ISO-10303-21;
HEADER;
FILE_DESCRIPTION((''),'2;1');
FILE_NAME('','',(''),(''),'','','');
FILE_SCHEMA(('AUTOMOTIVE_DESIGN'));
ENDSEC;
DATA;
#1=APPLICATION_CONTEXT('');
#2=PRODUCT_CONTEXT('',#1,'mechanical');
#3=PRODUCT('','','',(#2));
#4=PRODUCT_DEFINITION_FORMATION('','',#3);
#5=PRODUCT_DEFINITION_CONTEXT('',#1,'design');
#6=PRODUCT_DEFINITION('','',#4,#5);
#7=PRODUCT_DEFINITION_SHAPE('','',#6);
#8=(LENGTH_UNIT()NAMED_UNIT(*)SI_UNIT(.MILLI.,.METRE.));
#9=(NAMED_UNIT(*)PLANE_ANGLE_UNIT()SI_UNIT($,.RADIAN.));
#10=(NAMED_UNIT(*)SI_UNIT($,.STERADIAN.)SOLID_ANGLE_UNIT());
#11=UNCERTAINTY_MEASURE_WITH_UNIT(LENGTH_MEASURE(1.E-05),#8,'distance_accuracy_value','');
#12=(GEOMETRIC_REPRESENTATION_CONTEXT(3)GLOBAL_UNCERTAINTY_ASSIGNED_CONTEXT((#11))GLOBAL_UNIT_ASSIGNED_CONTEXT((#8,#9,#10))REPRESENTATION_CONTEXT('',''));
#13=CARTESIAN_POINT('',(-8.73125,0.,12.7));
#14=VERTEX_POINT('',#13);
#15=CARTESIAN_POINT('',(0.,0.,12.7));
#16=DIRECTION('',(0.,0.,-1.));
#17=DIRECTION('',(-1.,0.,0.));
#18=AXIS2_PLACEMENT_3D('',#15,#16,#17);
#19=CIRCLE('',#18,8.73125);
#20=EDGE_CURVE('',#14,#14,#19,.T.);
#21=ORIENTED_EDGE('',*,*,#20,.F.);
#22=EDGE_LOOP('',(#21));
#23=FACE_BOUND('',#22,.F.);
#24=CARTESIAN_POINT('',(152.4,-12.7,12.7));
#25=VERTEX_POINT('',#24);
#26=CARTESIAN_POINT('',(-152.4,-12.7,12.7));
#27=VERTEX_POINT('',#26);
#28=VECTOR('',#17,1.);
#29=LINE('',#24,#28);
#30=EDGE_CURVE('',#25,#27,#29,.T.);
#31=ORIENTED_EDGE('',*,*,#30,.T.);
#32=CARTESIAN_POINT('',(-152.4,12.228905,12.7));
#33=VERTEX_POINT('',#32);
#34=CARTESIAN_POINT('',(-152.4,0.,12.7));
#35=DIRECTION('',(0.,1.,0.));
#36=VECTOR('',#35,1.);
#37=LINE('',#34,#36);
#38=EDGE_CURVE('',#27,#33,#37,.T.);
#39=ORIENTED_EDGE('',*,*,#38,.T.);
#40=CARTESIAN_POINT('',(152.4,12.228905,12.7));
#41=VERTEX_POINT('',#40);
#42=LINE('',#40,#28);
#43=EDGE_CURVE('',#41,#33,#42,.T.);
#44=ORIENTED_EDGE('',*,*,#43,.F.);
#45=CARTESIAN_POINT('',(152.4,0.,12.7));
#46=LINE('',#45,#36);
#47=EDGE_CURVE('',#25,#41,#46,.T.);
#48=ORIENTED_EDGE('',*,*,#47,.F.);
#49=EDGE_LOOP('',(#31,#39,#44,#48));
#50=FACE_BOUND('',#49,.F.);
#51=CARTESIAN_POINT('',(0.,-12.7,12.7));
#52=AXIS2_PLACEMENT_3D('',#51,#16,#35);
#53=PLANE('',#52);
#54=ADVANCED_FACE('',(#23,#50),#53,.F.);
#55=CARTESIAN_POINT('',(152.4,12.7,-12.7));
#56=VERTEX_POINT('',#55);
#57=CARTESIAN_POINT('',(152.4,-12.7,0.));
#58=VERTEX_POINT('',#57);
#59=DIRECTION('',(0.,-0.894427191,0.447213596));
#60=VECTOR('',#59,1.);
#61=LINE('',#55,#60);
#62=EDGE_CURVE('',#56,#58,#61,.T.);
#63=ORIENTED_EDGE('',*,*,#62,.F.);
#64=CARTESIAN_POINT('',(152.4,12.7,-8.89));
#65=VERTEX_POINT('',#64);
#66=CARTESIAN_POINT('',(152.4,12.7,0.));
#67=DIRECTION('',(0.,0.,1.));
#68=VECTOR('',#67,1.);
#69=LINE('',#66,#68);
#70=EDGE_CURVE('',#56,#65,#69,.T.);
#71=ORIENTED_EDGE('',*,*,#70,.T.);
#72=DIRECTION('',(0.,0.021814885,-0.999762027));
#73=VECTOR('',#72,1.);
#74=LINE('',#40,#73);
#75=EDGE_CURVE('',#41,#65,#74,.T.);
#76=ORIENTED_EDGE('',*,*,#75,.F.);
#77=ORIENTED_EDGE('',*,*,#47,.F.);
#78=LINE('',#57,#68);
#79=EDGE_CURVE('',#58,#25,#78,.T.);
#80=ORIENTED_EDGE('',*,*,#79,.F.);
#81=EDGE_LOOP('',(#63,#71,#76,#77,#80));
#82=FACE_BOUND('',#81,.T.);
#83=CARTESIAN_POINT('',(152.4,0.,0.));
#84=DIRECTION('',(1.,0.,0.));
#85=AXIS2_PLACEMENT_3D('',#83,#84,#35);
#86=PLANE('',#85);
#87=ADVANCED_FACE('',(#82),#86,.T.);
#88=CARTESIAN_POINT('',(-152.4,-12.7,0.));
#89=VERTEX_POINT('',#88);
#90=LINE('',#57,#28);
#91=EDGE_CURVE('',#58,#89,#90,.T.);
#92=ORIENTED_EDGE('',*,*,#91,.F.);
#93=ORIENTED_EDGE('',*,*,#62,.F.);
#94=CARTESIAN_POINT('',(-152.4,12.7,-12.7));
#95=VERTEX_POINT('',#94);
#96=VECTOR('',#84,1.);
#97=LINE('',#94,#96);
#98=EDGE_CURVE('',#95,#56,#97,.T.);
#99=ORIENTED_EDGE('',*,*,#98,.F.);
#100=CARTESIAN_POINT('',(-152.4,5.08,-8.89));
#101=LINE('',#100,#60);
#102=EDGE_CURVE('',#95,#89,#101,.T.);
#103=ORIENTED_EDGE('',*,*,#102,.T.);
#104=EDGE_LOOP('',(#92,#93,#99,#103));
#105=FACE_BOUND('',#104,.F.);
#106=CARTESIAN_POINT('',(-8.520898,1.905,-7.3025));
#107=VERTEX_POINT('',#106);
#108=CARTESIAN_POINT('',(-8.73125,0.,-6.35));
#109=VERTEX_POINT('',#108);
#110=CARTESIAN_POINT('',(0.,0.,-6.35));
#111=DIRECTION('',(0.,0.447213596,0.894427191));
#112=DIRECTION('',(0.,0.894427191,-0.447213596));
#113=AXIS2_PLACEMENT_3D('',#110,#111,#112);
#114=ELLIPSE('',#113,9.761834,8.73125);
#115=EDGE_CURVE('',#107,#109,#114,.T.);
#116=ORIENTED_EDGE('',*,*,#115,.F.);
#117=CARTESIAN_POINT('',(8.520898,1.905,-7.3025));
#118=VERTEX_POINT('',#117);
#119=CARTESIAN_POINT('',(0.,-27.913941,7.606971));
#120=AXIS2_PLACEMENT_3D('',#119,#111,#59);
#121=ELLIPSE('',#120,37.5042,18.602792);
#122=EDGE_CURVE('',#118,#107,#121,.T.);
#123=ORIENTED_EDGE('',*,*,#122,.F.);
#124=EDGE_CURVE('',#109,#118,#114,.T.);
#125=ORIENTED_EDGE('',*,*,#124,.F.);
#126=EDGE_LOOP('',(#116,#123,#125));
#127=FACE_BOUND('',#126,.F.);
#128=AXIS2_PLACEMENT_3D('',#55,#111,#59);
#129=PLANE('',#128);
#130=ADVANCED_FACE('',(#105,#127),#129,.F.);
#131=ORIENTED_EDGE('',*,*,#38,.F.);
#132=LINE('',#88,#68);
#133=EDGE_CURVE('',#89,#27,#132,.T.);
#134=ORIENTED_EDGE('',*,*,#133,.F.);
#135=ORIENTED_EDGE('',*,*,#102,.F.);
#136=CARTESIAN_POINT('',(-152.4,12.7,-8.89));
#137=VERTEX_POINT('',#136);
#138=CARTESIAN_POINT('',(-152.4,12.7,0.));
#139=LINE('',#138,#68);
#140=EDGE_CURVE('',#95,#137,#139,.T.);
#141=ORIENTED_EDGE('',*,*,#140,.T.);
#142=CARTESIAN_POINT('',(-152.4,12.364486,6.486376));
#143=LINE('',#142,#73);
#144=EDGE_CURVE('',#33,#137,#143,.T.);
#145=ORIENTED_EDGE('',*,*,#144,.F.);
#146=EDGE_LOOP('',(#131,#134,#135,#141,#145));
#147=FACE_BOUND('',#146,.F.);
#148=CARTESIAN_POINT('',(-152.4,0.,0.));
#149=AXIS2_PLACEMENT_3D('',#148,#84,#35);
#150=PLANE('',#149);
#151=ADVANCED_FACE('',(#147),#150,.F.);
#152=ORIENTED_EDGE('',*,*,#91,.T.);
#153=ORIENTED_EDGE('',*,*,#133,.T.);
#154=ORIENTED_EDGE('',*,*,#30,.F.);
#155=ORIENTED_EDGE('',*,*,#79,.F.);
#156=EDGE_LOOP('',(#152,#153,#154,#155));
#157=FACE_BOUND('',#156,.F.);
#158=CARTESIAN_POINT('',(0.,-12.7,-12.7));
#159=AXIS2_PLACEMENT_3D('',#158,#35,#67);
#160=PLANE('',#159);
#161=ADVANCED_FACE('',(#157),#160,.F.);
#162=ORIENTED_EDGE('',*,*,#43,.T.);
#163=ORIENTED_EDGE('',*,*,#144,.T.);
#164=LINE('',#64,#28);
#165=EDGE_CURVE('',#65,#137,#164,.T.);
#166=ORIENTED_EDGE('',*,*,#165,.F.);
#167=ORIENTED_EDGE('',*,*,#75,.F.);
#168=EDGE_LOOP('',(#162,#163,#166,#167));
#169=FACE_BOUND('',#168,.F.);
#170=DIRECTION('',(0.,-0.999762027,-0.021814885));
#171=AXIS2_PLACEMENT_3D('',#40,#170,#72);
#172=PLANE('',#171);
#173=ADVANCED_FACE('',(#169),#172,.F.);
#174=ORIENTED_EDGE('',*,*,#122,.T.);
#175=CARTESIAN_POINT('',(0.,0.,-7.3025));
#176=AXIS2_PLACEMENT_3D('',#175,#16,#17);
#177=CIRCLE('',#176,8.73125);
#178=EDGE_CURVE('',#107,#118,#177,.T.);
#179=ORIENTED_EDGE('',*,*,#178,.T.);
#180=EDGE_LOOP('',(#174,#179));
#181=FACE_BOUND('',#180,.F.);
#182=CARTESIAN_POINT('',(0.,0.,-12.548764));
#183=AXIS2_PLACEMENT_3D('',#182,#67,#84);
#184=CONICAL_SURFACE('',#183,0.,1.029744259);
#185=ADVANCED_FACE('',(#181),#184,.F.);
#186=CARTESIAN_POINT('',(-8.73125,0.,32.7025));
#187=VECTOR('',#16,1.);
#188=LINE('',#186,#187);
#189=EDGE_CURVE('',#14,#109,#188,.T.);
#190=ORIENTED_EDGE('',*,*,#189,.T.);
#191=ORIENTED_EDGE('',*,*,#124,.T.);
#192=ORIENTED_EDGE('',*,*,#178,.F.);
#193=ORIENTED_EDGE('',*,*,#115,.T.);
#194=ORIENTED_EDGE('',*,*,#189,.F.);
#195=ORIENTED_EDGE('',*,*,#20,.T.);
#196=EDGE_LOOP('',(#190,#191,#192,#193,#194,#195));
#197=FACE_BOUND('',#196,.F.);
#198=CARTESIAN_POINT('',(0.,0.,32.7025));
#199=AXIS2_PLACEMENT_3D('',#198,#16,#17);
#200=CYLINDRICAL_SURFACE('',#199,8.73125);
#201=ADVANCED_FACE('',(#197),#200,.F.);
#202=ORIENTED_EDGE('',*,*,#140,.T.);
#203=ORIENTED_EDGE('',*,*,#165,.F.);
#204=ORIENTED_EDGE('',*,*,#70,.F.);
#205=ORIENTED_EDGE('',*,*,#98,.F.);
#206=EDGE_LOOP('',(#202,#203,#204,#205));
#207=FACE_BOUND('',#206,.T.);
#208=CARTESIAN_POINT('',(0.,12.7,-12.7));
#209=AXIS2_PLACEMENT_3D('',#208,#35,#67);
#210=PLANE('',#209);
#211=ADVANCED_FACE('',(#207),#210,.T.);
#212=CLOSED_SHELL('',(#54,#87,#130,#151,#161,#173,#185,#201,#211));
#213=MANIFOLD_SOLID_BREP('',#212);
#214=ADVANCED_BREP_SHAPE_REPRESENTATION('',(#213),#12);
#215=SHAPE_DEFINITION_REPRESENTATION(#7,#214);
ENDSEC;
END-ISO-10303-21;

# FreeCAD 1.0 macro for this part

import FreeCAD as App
import Part
import Sketcher

V = App.Vector
Q = App.Units.Quantity

doc = App.newDocument("Part")
body = doc.addObject("PartDesign::Body", "Body")

# Sketch on YZ plane
sketch1 = body.newObject("Sketcher::SketchObject", "Sketch")
sketch1.AttachmentSupport = (doc.getObject("YZ_Plane"), [""])
sketch1.MapMode = "FlatFace"
sketch1.addGeometry([
    Part.LineSegment(V(-13, 13, 0), V(-13, -13, 0)),
    Part.LineSegment(V(-13, -13, 0), V(13, -13, 0)),
    Part.LineSegment(V(13, -13, 0), V(13, 13, 0)),
    Part.LineSegment(V(13, 13, 0), V(-13, 13, 0)),
], False)
sketch1.addConstraint([
    Sketcher.Constraint("Coincident", 0, 2, 1, 1),
    Sketcher.Constraint("Coincident", 1, 2, 2, 1),
    Sketcher.Constraint("Coincident", 2, 2, 3, 1),
    Sketcher.Constraint("Coincident", 3, 2, 0, 1),
    Sketcher.Constraint("Vertical", 0),
    Sketcher.Constraint("Horizontal", 1),
    Sketcher.Constraint("Vertical", 2),
    Sketcher.Constraint("Horizontal", 3),
    Sketcher.Constraint("Symmetric", 0, 2, 2, 2, -1, 1),
    Sketcher.Constraint("Equal", 3, 0),
    Sketcher.Constraint("DistanceX", 1, 1, 1, 2, Q("1 in")),
])
pad1 = body.newObject("PartDesign::Pad", "Pad")
pad1.Profile = sketch1
pad1.Length = Q("12 in")
pad1.Midplane = True

# Sketch on XY plane
sketch2 = body.newObject("Sketcher::SketchObject", "Sketch001")
sketch2.AttachmentSupport = (doc.getObject("XY_Plane"), [""])
sketch2.MapMode = "FlatFace"
sketch2.AttachmentOffset = App.Placement(V(0, 0, 0.5 * 25.4), App.Rotation())
sketch2.addGeometry(Part.Circle(V(0, 0, 0), V(0, 0, 1), 9), False)
sketch2.addConstraint([
    Sketcher.Constraint("Coincident", 0, 3, -1, 1),
    Sketcher.Constraint("Diameter", 0, Q("0.6875 in")),
])
doc.recompute()
hole = body.newObject("PartDesign::Hole", "Hole")
hole.Profile = sketch2
hole.ThreadType = "None"
hole.Diameter = Q("0.6875 in")
hole.DepthType = "Dimension"
hole.Depth = Q("0.7875 in")
hole.DrillPoint = "Angled"
hole.DrillPointAngle = 118

# Sketch on YZ plane
sketch3 = body.newObject("Sketcher::SketchObject", "Sketch002")
sketch3.AttachmentSupport = (doc.getObject("YZ_Plane"), [""])
sketch3.MapMode = "FlatFace"
sketch3.AttachmentOffset = App.Placement(V(0, 0, 6 * 25.4), App.Rotation())
sketch3.addGeometry([
    Part.LineSegment(V(13, -13, 0), V(-13, 0, 0)),
    Part.LineSegment(V(-13, 0, 0), V(-13, -13, 0)),
    Part.LineSegment(V(-13, -13, 0), V(13, -13, 0)),
], False)
sketch3.addConstraint([
    Sketcher.Constraint("Coincident", 0, 2, 1, 1),
    Sketcher.Constraint("Coincident", 1, 2, 2, 1),
    Sketcher.Constraint("Coincident", 2, 2, 0, 1),
    Sketcher.Constraint("Vertical", 1),
    Sketcher.Constraint("Horizontal", 2),
    Sketcher.Constraint("PointOnObject", 0, 2, -1),
    Sketcher.Constraint("DistanceX", 2, 1, 2, 2, Q("1 in")),
    Sketcher.Constraint("DistanceY", 1, 2, 1, 1, Q("0.5 in")),
    Sketcher.Constraint("DistanceX", 0, 2, -1, 1, Q("0.5 in")),
])
pocket1 = body.newObject("PartDesign::Pocket", "Pocket")
pocket1.Profile = sketch3
pocket1.Type = "ThroughAll"

# Sketch on YZ plane
sketch4 = body.newObject("Sketcher::SketchObject", "Sketch003")
sketch4.AttachmentSupport = (doc.getObject("YZ_Plane"), [""])
sketch4.MapMode = "FlatFace"
sketch4.AttachmentOffset = App.Placement(V(0, 0, 6 * 25.4), App.Rotation())
sketch4.addGeometry([
    Part.LineSegment(V(12.23, 12.7, 0), V(12.7, -8.89, 0)),
    Part.LineSegment(V(12.7, -8.89, 0), V(12.7, 12.7, 0)),
    Part.LineSegment(V(12.7, 12.7, 0), V(12.23, 12.7, 0)),
], False)
sketch4.addConstraint([
    Sketcher.Constraint("Coincident", 0, 2, 1, 1),
    Sketcher.Constraint("Coincident", 1, 2, 2, 1),
    Sketcher.Constraint("Coincident", 2, 2, 0, 1),
    Sketcher.Constraint("Vertical", 1),
    Sketcher.Constraint("Horizontal", 2),
    Sketcher.Constraint("DistanceY", 1, 1, 1, 2, Q("0.85 in")),
    Sketcher.Constraint("DistanceX", -1, 1, 0, 2, Q("0.5 in")),
    Sketcher.Constraint("DistanceY", -1, 1, 1, 2, Q("0.5 in")),
    Sketcher.Constraint("Angle", 0, Q("-88.75 deg")),
])
pocket2 = body.newObject("PartDesign::Pocket", "Pocket001")
pocket2.Profile = sketch4
pocket2.Type = "ThroughAll"

doc.recompute()
